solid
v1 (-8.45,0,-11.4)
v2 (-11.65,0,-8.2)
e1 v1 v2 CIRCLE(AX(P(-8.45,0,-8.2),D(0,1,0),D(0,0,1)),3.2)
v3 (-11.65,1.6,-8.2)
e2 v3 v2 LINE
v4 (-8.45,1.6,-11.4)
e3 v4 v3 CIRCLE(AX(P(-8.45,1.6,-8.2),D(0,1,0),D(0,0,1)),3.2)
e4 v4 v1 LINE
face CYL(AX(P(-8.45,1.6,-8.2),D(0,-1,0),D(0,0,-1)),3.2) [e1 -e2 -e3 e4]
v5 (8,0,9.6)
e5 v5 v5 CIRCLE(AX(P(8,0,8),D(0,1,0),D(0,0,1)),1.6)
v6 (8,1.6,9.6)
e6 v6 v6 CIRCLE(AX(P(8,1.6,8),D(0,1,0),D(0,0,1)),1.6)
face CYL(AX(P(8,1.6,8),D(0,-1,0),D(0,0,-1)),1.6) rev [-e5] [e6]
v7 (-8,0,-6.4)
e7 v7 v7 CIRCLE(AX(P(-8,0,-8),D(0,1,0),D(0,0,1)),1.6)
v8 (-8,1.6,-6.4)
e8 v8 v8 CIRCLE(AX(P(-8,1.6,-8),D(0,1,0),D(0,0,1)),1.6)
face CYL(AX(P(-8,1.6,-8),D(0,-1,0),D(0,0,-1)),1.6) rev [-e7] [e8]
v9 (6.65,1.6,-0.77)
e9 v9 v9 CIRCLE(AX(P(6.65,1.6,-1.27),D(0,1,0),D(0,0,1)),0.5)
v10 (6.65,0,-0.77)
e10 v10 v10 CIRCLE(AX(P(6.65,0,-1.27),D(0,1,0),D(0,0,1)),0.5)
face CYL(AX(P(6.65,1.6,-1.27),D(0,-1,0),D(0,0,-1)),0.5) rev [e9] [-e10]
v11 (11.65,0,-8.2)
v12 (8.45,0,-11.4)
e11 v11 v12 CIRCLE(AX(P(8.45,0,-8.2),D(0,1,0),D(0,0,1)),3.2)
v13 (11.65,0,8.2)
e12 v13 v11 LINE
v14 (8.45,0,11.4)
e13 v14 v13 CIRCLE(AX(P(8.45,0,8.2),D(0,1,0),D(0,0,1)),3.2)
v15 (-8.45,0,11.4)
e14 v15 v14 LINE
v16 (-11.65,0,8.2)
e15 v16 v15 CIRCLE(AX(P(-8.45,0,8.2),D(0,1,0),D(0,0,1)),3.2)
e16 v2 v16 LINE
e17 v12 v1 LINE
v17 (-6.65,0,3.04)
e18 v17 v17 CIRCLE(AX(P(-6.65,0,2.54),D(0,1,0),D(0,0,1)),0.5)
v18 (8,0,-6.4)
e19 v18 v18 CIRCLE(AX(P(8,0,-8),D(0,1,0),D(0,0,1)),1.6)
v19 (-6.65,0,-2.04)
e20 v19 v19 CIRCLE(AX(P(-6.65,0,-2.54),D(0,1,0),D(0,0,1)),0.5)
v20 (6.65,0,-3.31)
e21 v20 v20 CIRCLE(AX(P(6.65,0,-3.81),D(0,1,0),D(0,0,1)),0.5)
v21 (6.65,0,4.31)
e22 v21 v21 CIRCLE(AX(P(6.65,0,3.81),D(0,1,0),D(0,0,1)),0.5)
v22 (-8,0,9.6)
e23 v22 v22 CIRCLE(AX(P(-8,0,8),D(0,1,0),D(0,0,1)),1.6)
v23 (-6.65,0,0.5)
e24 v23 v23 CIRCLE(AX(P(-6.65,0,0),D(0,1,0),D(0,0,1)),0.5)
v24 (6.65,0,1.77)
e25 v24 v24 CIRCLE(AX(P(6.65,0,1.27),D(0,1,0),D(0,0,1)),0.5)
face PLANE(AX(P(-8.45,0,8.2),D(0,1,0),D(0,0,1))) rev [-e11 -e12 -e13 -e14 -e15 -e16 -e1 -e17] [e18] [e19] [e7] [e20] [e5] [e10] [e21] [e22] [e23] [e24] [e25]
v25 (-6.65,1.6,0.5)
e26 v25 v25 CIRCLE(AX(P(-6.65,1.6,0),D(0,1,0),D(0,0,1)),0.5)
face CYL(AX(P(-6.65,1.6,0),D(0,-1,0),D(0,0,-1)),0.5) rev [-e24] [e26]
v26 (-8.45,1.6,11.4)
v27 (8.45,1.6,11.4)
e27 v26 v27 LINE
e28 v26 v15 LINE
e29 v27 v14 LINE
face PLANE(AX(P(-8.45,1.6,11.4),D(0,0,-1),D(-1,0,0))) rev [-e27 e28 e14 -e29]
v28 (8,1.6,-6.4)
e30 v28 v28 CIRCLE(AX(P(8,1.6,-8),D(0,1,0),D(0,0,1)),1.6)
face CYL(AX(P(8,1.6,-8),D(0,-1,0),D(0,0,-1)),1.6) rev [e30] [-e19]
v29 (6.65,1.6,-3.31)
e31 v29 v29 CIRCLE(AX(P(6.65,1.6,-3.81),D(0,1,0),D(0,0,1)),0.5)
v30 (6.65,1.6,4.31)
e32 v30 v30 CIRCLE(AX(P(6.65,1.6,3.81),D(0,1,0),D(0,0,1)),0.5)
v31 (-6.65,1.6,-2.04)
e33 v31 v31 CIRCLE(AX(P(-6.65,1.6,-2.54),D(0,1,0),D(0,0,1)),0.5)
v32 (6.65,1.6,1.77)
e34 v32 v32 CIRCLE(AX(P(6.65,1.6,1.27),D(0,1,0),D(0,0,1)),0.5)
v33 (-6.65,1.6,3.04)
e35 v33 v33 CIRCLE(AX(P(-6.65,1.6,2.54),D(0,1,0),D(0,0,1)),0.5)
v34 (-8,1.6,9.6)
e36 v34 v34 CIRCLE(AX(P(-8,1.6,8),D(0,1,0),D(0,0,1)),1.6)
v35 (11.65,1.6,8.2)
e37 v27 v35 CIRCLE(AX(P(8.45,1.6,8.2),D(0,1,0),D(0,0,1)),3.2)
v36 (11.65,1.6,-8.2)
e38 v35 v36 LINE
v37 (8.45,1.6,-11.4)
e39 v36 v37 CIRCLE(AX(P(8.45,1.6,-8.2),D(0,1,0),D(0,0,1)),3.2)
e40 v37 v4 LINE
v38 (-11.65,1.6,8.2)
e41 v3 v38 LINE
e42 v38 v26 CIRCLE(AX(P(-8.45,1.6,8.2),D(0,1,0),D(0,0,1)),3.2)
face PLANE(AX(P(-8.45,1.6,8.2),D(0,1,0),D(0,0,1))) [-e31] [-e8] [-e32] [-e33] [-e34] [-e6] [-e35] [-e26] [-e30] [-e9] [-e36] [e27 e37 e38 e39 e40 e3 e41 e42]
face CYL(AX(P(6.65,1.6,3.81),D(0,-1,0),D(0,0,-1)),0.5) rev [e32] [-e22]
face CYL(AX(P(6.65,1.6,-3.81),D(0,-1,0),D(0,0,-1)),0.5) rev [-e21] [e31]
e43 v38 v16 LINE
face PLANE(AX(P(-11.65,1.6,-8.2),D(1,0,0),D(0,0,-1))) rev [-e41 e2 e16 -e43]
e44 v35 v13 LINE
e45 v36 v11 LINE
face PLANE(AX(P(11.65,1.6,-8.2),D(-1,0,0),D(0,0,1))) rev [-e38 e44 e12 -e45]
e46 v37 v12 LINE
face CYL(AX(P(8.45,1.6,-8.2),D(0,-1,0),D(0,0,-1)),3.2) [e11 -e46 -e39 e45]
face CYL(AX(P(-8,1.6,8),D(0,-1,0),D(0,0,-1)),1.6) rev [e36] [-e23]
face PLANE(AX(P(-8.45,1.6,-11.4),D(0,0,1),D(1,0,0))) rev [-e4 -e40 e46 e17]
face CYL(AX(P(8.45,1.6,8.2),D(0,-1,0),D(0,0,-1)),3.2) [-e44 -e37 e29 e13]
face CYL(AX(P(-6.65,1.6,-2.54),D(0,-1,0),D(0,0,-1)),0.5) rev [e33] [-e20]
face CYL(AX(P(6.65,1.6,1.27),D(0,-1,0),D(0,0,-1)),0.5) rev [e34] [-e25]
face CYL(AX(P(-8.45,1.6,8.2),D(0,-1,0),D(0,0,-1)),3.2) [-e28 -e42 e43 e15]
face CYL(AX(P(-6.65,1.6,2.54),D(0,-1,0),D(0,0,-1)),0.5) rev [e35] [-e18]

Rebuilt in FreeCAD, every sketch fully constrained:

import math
import FreeCAD as App
import Part
import Sketcher

V = App.Vector

doc = App.newDocument("Part")
body = doc.addObject("PartDesign::Body", "Body")

# Sketch on XZ plane
sketch1 = body.newObject("Sketcher::SketchObject", "Sketch")
sketch1.AttachmentSupport = (doc.getObject("XZ_Plane"), [""])
sketch1.MapMode = "FlatFace"
sketch1.addGeometry([
    Part.LineSegment(V(8.45, -11.4, 0), V(-8.45, -11.4, 0)),  # 0
    Part.ArcOfCircle(Part.Circle(V(-8.45, -8.2, 0), V(0, 0, 1), 3.2), math.radians(180), math.radians(270)),  # 1
    Part.LineSegment(V(-11.65, -8.2, 0), V(-11.65, 8.2, 0)),  # 2
    Part.ArcOfCircle(Part.Circle(V(-8.45, 8.2, 0), V(0, 0, 1), 3.2), math.radians(90), math.radians(180)),  # 3
    Part.LineSegment(V(-8.45, 11.4, 0), V(8.45, 11.4, 0)),  # 4
    Part.ArcOfCircle(Part.Circle(V(8.45, 8.2, 0), V(0, 0, 1), 3.2), math.radians(0), math.radians(90)),  # 5
    Part.LineSegment(V(11.65, 8.2, 0), V(11.65, -8.2, 0)),  # 6
    Part.ArcOfCircle(Part.Circle(V(8.45, -8.2, 0), V(0, 0, 1), 3.2), math.radians(-90), math.radians(0)),  # 7
    Part.Circle(V(8, 8, 0), V(0, 0, 1), 1.6),  # 8
    Part.Circle(V(6.65, 3.81, 0), V(0, 0, 1), 0.5),  # 9
    Part.Circle(V(6.65, 1.27, 0), V(0, 0, 1), 0.5),  # 10
    Part.Circle(V(-8, 8, 0), V(0, 0, 1), 1.6),  # 11
    Part.Circle(V(-6.65, 2.54, 0), V(0, 0, 1), 0.5),  # 12
    Part.Circle(V(6.65, -1.27, 0), V(0, 0, 1), 0.5),  # 13
    Part.Circle(V(6.65, -3.81, 0), V(0, 0, 1), 0.5),  # 14
    Part.Circle(V(8, -8, 0), V(0, 0, 1), 1.6),  # 15
    Part.Circle(V(-6.65, 0, 0), V(0, 0, 1), 0.5),  # 16
    Part.Circle(V(-6.65, -2.54, 0), V(0, 0, 1), 0.5),  # 17
    Part.Circle(V(-8, -8, 0), V(0, 0, 1), 1.6),  # 18
], False)
sketch1.addConstraint([
    Sketcher.Constraint("Tangent", 0, 2, 1, 2),
    Sketcher.Constraint("Tangent", 1, 1, 2, 1),
    Sketcher.Constraint("Tangent", 2, 2, 3, 2),
    Sketcher.Constraint("Tangent", 3, 1, 4, 1),
    Sketcher.Constraint("Tangent", 4, 2, 5, 2),
    Sketcher.Constraint("Tangent", 5, 1, 6, 1),
    Sketcher.Constraint("Tangent", 6, 2, 7, 2),
    Sketcher.Constraint("Tangent", 7, 1, 0, 1),
    Sketcher.Constraint("Horizontal", 0),
    Sketcher.Constraint("Vertical", 2),
    Sketcher.Constraint("Horizontal", 4),
    Sketcher.Constraint("Vertical", 6),
    Sketcher.Constraint("Equal", 1, 3),
    Sketcher.Constraint("Equal", 3, 5),
    Sketcher.Constraint("Equal", 5, 7),
    Sketcher.Constraint("Equal", 9, 10),
    Sketcher.Constraint("Equal", 8, 11),
    Sketcher.Constraint("Equal", 10, 12),
    Sketcher.Constraint("Equal", 12, 13),
    Sketcher.Constraint("Equal", 13, 14),
    Sketcher.Constraint("Equal", 11, 15),
    Sketcher.Constraint("Equal", 14, 16),
    Sketcher.Constraint("Equal", 16, 17),
    Sketcher.Constraint("Equal", 15, 18),
    Sketcher.Constraint("Symmetric", 1, 3, 5, 3, -1, 1),
    Sketcher.Constraint("Symmetric", 11, 3, 15, 3, -1, 1),
    Sketcher.Constraint("Symmetric", 8, 3, 18, 3, -1, 1),
    Sketcher.Constraint("Symmetric", 8, 3, 11, 3, -2),
    Sketcher.Constraint("Symmetric", 10, 3, 13, 3, -1),
    Sketcher.Constraint("Symmetric", 9, 3, 14, 3, -1),
    Sketcher.Constraint("Symmetric", 12, 3, 17, 3, -1),
    Sketcher.Constraint("PointOnObject", 16, 3, -1),
    Sketcher.Constraint("Vertical", 9, 3, 10, 3),
    Sketcher.Constraint("Vertical", 12, 3, 16, 3),
    Sketcher.Constraint("Diameter", 9, 1.0),
    Sketcher.Constraint("Diameter", 8, 3.2),
    Sketcher.Constraint("Radius", 1, 3.2),
    Sketcher.Constraint("DistanceX", 0, 2, 0, 1, 16.9),
    Sketcher.Constraint("DistanceY", 2, 1, 2, 2, 16.4),
    Sketcher.Constraint("DistanceX", -1, 1, 8, 3, 8.0),
    Sketcher.Constraint("DistanceY", -1, 1, 8, 3, 8.0),
    Sketcher.Constraint("DistanceX", 1, 1, 17, 3, 5.0),
    Sketcher.Constraint("DistanceX", 9, 3, 5, 1, 5.0),
    Sketcher.Constraint("DistanceY", -1, 1, 9, 3, 3.81),
    Sketcher.Constraint("DistanceY", -1, 1, 10, 3, 1.27),
    Sketcher.Constraint("DistanceY", -1, 1, 12, 3, 2.54),
])
pad1 = body.newObject("PartDesign::Pad", "Pad")
pad1.Profile = sketch1
pad1.Length = 1.6
pad1.Reversed = True

doc.recompute()
